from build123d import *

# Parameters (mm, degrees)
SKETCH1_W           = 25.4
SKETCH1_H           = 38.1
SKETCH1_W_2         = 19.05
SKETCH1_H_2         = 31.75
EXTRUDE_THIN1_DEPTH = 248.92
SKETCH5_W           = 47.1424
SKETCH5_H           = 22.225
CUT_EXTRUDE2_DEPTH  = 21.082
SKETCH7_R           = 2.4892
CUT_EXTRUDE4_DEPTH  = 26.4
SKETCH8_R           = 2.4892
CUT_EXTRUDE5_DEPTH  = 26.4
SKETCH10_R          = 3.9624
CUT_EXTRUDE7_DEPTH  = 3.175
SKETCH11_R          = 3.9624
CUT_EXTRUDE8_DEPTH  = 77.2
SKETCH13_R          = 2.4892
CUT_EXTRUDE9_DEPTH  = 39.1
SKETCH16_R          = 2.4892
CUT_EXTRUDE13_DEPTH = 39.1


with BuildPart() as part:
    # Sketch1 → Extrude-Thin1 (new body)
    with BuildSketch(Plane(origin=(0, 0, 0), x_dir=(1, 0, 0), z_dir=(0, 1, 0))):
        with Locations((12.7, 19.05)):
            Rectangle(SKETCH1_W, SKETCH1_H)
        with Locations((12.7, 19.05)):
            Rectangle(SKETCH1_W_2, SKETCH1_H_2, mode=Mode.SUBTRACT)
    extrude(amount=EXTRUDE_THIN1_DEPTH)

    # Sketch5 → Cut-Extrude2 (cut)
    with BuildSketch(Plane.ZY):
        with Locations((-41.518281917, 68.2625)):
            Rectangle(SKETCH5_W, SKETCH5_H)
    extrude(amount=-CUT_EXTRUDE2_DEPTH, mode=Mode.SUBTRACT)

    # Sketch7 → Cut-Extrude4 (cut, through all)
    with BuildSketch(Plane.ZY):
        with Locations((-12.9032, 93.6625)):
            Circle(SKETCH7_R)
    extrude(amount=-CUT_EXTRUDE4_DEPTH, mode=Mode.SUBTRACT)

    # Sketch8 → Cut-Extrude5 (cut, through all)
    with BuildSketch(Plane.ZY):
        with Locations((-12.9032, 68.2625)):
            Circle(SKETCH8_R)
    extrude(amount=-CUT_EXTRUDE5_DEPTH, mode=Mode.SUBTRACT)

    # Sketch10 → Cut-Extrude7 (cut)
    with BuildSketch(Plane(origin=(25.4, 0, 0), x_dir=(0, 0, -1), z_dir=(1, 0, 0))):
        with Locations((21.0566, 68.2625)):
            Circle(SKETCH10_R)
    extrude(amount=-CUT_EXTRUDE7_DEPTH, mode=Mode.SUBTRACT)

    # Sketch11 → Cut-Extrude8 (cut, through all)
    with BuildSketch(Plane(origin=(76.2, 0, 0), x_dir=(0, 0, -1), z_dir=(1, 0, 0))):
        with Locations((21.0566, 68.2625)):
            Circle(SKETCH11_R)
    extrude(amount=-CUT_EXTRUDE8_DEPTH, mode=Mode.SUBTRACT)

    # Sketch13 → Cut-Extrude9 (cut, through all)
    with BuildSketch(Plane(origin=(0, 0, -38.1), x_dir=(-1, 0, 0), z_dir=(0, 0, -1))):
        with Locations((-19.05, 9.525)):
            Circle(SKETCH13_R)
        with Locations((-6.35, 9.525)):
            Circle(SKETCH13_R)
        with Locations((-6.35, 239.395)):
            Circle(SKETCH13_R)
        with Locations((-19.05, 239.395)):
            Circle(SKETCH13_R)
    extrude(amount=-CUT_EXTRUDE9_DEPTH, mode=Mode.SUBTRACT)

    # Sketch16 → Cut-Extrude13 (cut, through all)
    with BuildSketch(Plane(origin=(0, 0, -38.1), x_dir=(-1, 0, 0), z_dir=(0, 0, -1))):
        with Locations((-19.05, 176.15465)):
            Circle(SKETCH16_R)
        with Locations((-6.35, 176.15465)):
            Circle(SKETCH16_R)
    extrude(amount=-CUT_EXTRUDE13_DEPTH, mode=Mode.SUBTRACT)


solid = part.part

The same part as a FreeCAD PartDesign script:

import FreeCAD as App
import Part
import Sketcher
Q = App.Units.Quantity

doc = App.newDocument("Part")
body = doc.addObject("PartDesign::Body", "Body")

# Sketch on XZ plane
sketch1 = body.newObject("Sketcher::SketchObject", "Sketch")
sketch1.AttachmentSupport = (doc.getObject("XZ_Plane"), [""])
sketch1.MapMode = "FlatFace"
sketch1.addGeometry([
    Part.LineSegment(App.Vector(0, -38, 0), App.Vector(0, 0, 0)),  # 0
    Part.LineSegment(App.Vector(0, 0, 0), App.Vector(25, 0, 0)),  # 1
    Part.LineSegment(App.Vector(25, 0, 0), App.Vector(25, -38, 0)),  # 2
    Part.LineSegment(App.Vector(25, -38, 0), App.Vector(0, -38, 0)),  # 3
    Part.LineSegment(App.Vector(22, -3, 0), App.Vector(3, -3, 0)),  # 4
    Part.LineSegment(App.Vector(3, -3, 0), App.Vector(3, -35, 0)),  # 5
    Part.LineSegment(App.Vector(3, -35, 0), App.Vector(22, -35, 0)),  # 6
    Part.LineSegment(App.Vector(22, -35, 0), App.Vector(22, -3, 0)),  # 7
], False)
sketch1.addConstraint([
    Sketcher.Constraint("Coincident", 0, 2, 1, 1),
    Sketcher.Constraint("Coincident", 1, 2, 2, 1),
    Sketcher.Constraint("Coincident", 2, 2, 3, 1),
    Sketcher.Constraint("Coincident", 3, 2, 0, 1),
    Sketcher.Constraint("Coincident", 4, 2, 5, 1),
    Sketcher.Constraint("Coincident", 5, 2, 6, 1),
    Sketcher.Constraint("Coincident", 6, 2, 7, 1),
    Sketcher.Constraint("Coincident", 7, 2, 4, 1),
    Sketcher.Constraint("Vertical", 0),
    Sketcher.Constraint("Horizontal", 1),
    Sketcher.Constraint("Vertical", 2),
    Sketcher.Constraint("Horizontal", 3),
    Sketcher.Constraint("Horizontal", 4),
    Sketcher.Constraint("Vertical", 5),
    Sketcher.Constraint("Horizontal", 6),
    Sketcher.Constraint("Vertical", 7),
    Sketcher.Constraint("Coincident", 0, 2, -1, 1),
    Sketcher.Constraint("DistanceX", 1, 1, 1, 2, Q("1 in")),
    Sketcher.Constraint("DistanceY", 0, 1, 0, 2, Q("1.5 in")),
    Sketcher.Constraint("DistanceX", 4, 2, 4, 1, Q("0.75 in")),
    Sketcher.Constraint("DistanceY", 5, 2, 5, 1, Q("1.25 in")),
    Sketcher.Constraint("DistanceX", -1, 1, 4, 2, Q("0.125 in")),
    Sketcher.Constraint("DistanceY", 4, 2, -1, 1, Q("0.125 in")),
])
pad1 = body.newObject("PartDesign::Pad", "Pad")
pad1.Profile = sketch1
pad1.Length = Q("9.8 in")
pad1.Reversed = True

# Sketch on YZ plane
sketch2 = body.newObject("Sketcher::SketchObject", "Sketch001")
sketch2.AttachmentSupport = (doc.getObject("YZ_Plane"), [""])
sketch2.MapMode = "FlatFace"
sketch2.addGeometry([
    Part.LineSegment(App.Vector(79, -65, 0), App.Vector(57, -65, 0)),
    Part.LineSegment(App.Vector(57, -65, 0), App.Vector(57, -18, 0)),
    Part.LineSegment(App.Vector(57, -18, 0), App.Vector(79, -18, 0)),
    Part.LineSegment(App.Vector(79, -18, 0), App.Vector(79, -65, 0)),
], False)
sketch2.addConstraint([
    Sketcher.Constraint("Coincident", 0, 2, 1, 1),
    Sketcher.Constraint("Coincident", 1, 2, 2, 1),
    Sketcher.Constraint("Coincident", 2, 2, 3, 1),
    Sketcher.Constraint("Coincident", 3, 2, 0, 1),
    Sketcher.Constraint("Horizontal", 0),
    Sketcher.Constraint("Vertical", 1),
    Sketcher.Constraint("Horizontal", 2),
    Sketcher.Constraint("Vertical", 3),
    Sketcher.Constraint("DistanceX", 0, 2, 0, 1, Q("0.875 in")),
    Sketcher.Constraint("DistanceY", 1, 1, 1, 2, Q("1.856 in")),
    Sketcher.Constraint("DistanceX", -1, 1, 0, 2, Q("2.25 in")),
    Sketcher.Constraint("DistanceY", 0, 2, -1, 1, Q("65.089482 mm")),
])
pocket1 = body.newObject("PartDesign::Pocket", "Pocket")
pocket1.Profile = sketch2
pocket1.Length = Q("0.83 in")
pocket1.Reversed = True

# Sketch on YZ plane
sketch3 = body.newObject("Sketcher::SketchObject", "Sketch002")
sketch3.AttachmentSupport = (doc.getObject("YZ_Plane"), [""])
sketch3.MapMode = "FlatFace"
sketch3.addGeometry(Part.Circle(App.Vector(93.7, -12.9, 0), App.Vector(0, 0, 1), 2.5), False)
sketch3.addConstraint([
    Sketcher.Constraint("Diameter", 0, Q("0.196 in")),
    Sketcher.Constraint("DistanceX", -1, 1, 0, 3, Q("3.6875 in")),
    Sketcher.Constraint("DistanceY", 0, 3, -1, 1, Q("0.508 in")),
])
pocket2 = body.newObject("PartDesign::Pocket", "Pocket001")
pocket2.Profile = sketch3
pocket2.Type = "ThroughAll"
pocket2.Reversed = True

# Sketch on YZ plane
sketch4 = body.newObject("Sketcher::SketchObject", "Sketch003")
sketch4.AttachmentSupport = (doc.getObject("YZ_Plane"), [""])
sketch4.MapMode = "FlatFace"
sketch4.addGeometry(Part.Circle(App.Vector(68.3, -12.9, 0), App.Vector(0, 0, 1), 2.5), False)
sketch4.addConstraint([
    Sketcher.Constraint("Diameter", 0, Q("0.196 in")),
    Sketcher.Constraint("DistanceX", -1, 1, 0, 3, Q("2.6875 in")),
    Sketcher.Constraint("DistanceY", 0, 3, -1, 1, Q("0.508 in")),
])
pocket3 = body.newObject("PartDesign::Pocket", "Pocket002")
pocket3.Profile = sketch4
pocket3.Type = "ThroughAll"
pocket3.Reversed = True

# Sketch on YZ plane
sketch5 = body.newObject("Sketcher::SketchObject", "Sketch004")
sketch5.AttachmentSupport = (doc.getObject("YZ_Plane"), [""])
sketch5.MapMode = "FlatFace"
sketch5.AttachmentOffset = App.Placement(App.Vector(0, 0, 1 * 25.4), App.Rotation())
sketch5.addGeometry(Part.Circle(App.Vector(68.3, -21.1, 0), App.Vector(0, 0, 1), 4), False)
sketch5.addConstraint([
    Sketcher.Constraint("Diameter", 0, Q("0.312 in")),
    Sketcher.Constraint("DistanceX", -1, 1, 0, 3, Q("2.6875 in")),
    Sketcher.Constraint("DistanceY", 0, 3, -1, 1, Q("0.829 in")),
])
pocket4 = body.newObject("PartDesign::Pocket", "Pocket003")
pocket4.Profile = sketch5
pocket4.Length = Q("0.125 in")

# Sketch on YZ plane
sketch6 = body.newObject("Sketcher::SketchObject", "Sketch005")
sketch6.AttachmentSupport = (doc.getObject("YZ_Plane"), [""])
sketch6.MapMode = "FlatFace"
sketch6.AttachmentOffset = App.Placement(App.Vector(0, 0, 3 * 25.4), App.Rotation())
sketch6.addGeometry(Part.Circle(App.Vector(68.3, -21.1, 0), App.Vector(0, 0, 1), 4), False)
sketch6.addConstraint([
    Sketcher.Constraint("Diameter", 0, Q("0.312 in")),
    Sketcher.Constraint("DistanceX", -1, 1, 0, 3, Q("2.6875 in")),
    Sketcher.Constraint("DistanceY", 0, 3, -1, 1, Q("0.829 in")),
])
pocket5 = body.newObject("PartDesign::Pocket", "Pocket004")
pocket5.Profile = sketch6
pocket5.Type = "ThroughAll"

# Sketch on XY plane
sketch7 = body.newObject("Sketcher::SketchObject", "Sketch006")
sketch7.AttachmentSupport = (doc.getObject("XY_Plane"), [""])
sketch7.MapMode = "FlatFace"
sketch7.AttachmentOffset = App.Placement(App.Vector(0, 0, -1.5 * 25.4), App.Rotation())
sketch7.addGeometry([
    Part.Circle(App.Vector(19.1, 9.5, 0), App.Vector(0, 0, 1), 2.5),
    Part.Circle(App.Vector(6.3, 9.5, 0), App.Vector(0, 0, 1), 2.5),
    Part.Circle(App.Vector(6.3, 239.4, 0), App.Vector(0, 0, 1), 2.5),
    Part.Circle(App.Vector(19.1, 239.4, 0), App.Vector(0, 0, 1), 2.5),
], False)
sketch7.addConstraint([
    Sketcher.Constraint("Equal", 0, 1),
    Sketcher.Constraint("Equal", 1, 2),
    Sketcher.Constraint("Equal", 2, 3),
    Sketcher.Constraint("Horizontal", 0, 3, 1, 3),
    Sketcher.Constraint("Horizontal", 2, 3, 3, 3),
    Sketcher.Constraint("Vertical", 1, 3, 2, 3),
    Sketcher.Constraint("Vertical", 0, 3, 3, 3),
    Sketcher.Constraint("Diameter", 0, Q("0.196 in")),
    Sketcher.Constraint("DistanceX", 1, 3, 0, 3, Q("0.5 in")),
    Sketcher.Constraint("DistanceX", -1, 1, 0, 3, Q("0.75 in")),
    Sketcher.Constraint("DistanceY", 1, 3, 2, 3, Q("9.05 in")),
    Sketcher.Constraint("DistanceY", -1, 1, 0, 3, Q("0.375 in")),
])
pocket6 = body.newObject("PartDesign::Pocket", "Pocket005")
pocket6.Profile = sketch7
pocket6.Type = "ThroughAll"
pocket6.Reversed = True

# Sketch on XY plane
sketch8 = body.newObject("Sketcher::SketchObject", "Sketch007")
sketch8.AttachmentSupport = (doc.getObject("XY_Plane"), [""])
sketch8.MapMode = "FlatFace"
sketch8.AttachmentOffset = App.Placement(App.Vector(0, 0, -1.5 * 25.4), App.Rotation())
sketch8.addGeometry([
    Part.Circle(App.Vector(19.1, 176.2, 0), App.Vector(0, 0, 1), 2.5),
    Part.Circle(App.Vector(6.3, 176.2, 0), App.Vector(0, 0, 1), 2.5),
], False)
sketch8.addConstraint([
    Sketcher.Constraint("Equal", 0, 1),
    Sketcher.Constraint("Horizontal", 0, 3, 1, 3),
    Sketcher.Constraint("Diameter", 0, Q("0.196 in")),
    Sketcher.Constraint("DistanceX", 1, 3, 0, 3, Q("0.5 in")),
    Sketcher.Constraint("DistanceX", -1, 1, 0, 3, Q("0.75 in")),
    Sketcher.Constraint("DistanceY", -1, 1, 0, 3, Q("176.15465 mm")),
])
pocket7 = body.newObject("PartDesign::Pocket", "Pocket006")
pocket7.Profile = sketch8
pocket7.Type = "ThroughAll"
pocket7.Reversed = True

doc.recompute()
